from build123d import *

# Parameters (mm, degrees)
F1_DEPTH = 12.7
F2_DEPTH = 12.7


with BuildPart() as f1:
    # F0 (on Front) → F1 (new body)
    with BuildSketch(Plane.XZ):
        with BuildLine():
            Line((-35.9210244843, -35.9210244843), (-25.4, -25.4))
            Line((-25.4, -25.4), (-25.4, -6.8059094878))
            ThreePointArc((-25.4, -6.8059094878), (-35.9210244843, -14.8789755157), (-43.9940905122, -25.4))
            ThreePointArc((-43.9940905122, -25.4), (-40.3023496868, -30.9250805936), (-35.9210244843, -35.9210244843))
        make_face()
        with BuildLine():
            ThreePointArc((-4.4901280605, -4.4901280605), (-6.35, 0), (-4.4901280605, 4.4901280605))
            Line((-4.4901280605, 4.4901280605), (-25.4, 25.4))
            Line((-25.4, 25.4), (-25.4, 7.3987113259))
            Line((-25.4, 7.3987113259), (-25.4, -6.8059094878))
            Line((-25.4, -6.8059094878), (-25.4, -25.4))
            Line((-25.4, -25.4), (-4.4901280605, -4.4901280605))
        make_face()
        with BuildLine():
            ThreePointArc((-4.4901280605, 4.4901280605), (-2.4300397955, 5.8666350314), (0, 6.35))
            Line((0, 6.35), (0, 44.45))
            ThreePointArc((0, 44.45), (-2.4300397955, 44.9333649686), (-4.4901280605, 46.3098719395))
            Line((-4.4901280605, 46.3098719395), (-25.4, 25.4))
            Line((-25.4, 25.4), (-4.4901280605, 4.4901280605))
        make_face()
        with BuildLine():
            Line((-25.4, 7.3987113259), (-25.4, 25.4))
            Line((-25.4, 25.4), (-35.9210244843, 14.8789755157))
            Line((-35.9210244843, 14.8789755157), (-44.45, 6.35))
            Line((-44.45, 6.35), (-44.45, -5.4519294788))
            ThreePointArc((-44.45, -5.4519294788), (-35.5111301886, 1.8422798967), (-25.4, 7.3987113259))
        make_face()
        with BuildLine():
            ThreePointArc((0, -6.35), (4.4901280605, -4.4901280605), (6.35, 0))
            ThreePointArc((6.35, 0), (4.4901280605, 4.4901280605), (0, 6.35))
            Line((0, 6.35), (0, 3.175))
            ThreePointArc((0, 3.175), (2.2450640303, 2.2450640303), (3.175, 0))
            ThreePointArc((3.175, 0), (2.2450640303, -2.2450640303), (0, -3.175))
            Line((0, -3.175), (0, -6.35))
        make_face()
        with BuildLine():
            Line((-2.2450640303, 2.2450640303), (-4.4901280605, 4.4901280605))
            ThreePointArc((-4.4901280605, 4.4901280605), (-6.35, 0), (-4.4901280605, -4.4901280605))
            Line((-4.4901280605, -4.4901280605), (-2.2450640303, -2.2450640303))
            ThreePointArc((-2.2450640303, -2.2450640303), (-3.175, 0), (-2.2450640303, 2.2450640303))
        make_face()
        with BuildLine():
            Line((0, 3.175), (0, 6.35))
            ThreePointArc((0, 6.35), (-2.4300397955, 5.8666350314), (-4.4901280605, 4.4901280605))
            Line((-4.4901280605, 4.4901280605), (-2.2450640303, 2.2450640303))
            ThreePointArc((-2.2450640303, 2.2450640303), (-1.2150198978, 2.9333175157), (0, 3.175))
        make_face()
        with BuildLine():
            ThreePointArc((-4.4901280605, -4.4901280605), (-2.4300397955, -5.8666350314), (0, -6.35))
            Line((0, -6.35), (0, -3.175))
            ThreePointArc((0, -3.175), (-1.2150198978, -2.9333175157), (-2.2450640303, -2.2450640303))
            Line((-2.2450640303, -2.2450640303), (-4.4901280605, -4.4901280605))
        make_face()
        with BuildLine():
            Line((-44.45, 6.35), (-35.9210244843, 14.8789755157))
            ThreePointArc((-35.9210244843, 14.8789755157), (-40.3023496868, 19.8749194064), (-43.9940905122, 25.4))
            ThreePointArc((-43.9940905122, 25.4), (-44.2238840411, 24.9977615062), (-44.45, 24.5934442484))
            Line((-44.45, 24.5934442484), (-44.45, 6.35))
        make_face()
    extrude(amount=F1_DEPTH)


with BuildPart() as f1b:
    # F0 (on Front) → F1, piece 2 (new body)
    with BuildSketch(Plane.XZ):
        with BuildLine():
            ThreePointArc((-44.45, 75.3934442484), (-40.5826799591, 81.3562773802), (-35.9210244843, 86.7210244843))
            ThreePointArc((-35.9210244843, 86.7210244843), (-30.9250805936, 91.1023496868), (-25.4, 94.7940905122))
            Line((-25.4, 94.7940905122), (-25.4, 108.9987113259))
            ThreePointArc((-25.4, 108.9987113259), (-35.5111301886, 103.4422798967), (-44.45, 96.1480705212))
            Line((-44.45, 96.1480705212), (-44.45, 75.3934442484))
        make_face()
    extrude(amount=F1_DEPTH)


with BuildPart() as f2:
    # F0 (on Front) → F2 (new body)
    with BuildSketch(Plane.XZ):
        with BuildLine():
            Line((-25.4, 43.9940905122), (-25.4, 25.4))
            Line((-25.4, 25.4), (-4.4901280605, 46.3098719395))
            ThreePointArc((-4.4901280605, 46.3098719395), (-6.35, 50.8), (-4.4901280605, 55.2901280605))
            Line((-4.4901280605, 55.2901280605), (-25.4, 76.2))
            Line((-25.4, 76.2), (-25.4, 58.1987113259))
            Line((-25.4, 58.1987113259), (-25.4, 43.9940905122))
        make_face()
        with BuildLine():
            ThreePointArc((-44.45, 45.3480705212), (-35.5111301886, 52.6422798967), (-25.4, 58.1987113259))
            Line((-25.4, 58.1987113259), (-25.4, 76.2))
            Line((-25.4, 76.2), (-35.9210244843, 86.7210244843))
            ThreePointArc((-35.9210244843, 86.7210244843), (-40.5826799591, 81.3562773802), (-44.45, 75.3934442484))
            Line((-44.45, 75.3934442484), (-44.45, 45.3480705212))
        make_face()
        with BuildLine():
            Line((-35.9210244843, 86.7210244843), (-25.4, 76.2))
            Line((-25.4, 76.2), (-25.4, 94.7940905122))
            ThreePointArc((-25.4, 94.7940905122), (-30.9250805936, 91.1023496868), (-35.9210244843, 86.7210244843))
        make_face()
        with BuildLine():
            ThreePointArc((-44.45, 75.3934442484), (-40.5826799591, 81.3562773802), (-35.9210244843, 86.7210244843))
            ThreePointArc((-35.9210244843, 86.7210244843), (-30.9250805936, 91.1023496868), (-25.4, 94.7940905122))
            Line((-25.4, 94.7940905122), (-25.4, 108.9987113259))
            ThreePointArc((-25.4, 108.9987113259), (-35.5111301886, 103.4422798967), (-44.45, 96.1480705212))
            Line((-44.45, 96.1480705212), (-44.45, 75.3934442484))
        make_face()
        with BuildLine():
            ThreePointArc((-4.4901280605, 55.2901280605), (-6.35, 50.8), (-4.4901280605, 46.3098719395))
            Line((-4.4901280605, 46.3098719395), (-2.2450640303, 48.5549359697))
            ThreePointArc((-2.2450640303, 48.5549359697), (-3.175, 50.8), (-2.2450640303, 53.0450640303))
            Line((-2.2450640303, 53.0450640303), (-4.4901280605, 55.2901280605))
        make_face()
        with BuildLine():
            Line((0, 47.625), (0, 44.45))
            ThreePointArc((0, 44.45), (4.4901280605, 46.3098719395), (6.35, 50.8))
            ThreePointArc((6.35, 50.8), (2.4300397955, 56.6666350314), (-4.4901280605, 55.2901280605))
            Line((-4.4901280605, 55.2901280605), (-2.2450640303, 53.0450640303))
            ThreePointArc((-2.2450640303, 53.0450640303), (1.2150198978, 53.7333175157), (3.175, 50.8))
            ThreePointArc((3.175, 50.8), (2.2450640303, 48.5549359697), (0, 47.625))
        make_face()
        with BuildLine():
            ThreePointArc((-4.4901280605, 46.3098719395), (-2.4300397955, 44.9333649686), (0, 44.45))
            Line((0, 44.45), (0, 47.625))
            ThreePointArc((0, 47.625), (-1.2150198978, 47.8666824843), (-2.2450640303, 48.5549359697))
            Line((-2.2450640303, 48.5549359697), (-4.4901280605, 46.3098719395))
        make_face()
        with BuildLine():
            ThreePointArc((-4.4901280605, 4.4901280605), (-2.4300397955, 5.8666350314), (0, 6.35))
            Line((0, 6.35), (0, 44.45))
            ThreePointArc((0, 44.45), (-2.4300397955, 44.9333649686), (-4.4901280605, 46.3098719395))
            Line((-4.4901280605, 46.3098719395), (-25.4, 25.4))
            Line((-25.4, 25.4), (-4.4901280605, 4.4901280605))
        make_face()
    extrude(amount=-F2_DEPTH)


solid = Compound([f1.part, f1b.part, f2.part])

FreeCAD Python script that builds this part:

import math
import FreeCAD as App
import Part
import Sketcher

V = App.Vector
Q = App.Units.Quantity

doc = App.newDocument("Part")
body = doc.addObject("PartDesign::Body", "Body")

sketch1 = body.newObject("Sketcher::SketchObject", "Sketch")
sketch1.AttachmentSupport = (doc.getObject("XZ_Plane"), [""])
sketch1.MapMode = "FlatFace"
sketch1.addGeometry([
    Part.LineSegment(V(-35.9, -35.9, 0), V(-4.5, -4.5, 0)),
    Part.ArcOfCircle(Part.Circle(V(0, 0, 0), V(0, 0, 1), 6.3), math.radians(-135), math.radians(-90)),
    Part.ArcOfCircle(Part.Circle(V(0, 0, 0), V(0, 0, 1), 6.3), math.radians(-90), math.radians(0)),
    Part.ArcOfCircle(Part.Circle(V(0, 0, 0), V(0, 0, 1), 6.3), math.radians(0), math.radians(90)),
    Part.LineSegment(V(0, 6.3, 0), V(0, 44.5, 0)),
    Part.ArcOfCircle(Part.Circle(V(0, 50.8, 0), V(0, 0, 1), 6.3), math.radians(-135), math.radians(-90)),
    Part.LineSegment(V(-4.5, 46.3, 0), V(-35.9, 14.9, 0)),
    Part.ArcOfCircle(Part.Circle(V(0, 50.8, 0), V(0, 0, 1), 50.8), math.radians(-150), math.radians(-135)),
    Part.ArcOfCircle(Part.Circle(V(0, 0, 0), V(0, 0, 1), 50.8), math.radians(150), math.radians(151.04)),
    Part.LineSegment(V(-44.5, 24.6, 0), V(-44.5, -5.5, 0)),
    Part.ArcOfCircle(Part.Circle(V(0, -50.8, 0), V(0, 0, 1), 63.5), math.radians(114), math.radians(134)),
    Part.LineSegment(V(-25.4, 7.4, 0), V(-25.4, -6.8, 0)),
    Part.ArcOfCircle(Part.Circle(V(0, -50.8, 0), V(0, 0, 1), 50.8), math.radians(120), math.radians(150)),
    Part.ArcOfCircle(Part.Circle(V(0, 0, 0), V(0, 0, 1), 50.8), math.radians(-150), math.radians(-135)),
    Part.ArcOfCircle(Part.Circle(V(0, 0, 0), V(0, 0, 1), 3.2), math.radians(135), math.radians(225)),
    Part.ArcOfCircle(Part.Circle(V(0, 0, 0), V(0, 0, 1), 3.2), math.radians(90), math.radians(135)),
    Part.ArcOfCircle(Part.Circle(V(0, 0, 0), V(0, 0, 1), 3.2), math.radians(0), math.radians(90)),
    Part.ArcOfCircle(Part.Circle(V(0, 0, 0), V(0, 0, 1), 3.2), math.radians(-90), math.radians(0)),
    Part.ArcOfCircle(Part.Circle(V(0, 0, 0), V(0, 0, 1), 3.2), math.radians(-135), math.radians(-90)),
], False)
sketch1.addConstraint([
    Sketcher.Constraint("Coincident", 0, 2, 1, 1),
    Sketcher.Constraint("Tangent", 1, 2, 2, 1),
    Sketcher.Constraint("Tangent", 2, 2, 3, 1),
    Sketcher.Constraint("Coincident", 3, 2, 4, 1),
    Sketcher.Constraint("Coincident", 4, 2, 5, 2),
    Sketcher.Constraint("Coincident", 5, 1, 6, 1),
    Sketcher.Constraint("Coincident", 6, 2, 7, 2),
    Sketcher.Constraint("Coincident", 7, 1, 8, 1),
    Sketcher.Constraint("Coincident", 8, 2, 9, 1),
    Sketcher.Constraint("Coincident", 9, 2, 10, 2),
    Sketcher.Constraint("Coincident", 10, 1, 11, 1),
    Sketcher.Constraint("Coincident", 11, 2, 12, 1),
    Sketcher.Constraint("Coincident", 12, 2, 13, 1),
    Sketcher.Constraint("Coincident", 13, 2, 0, 1),
    Sketcher.Constraint("Tangent", 14, 1, 15, 2),
    Sketcher.Constraint("Tangent", 15, 1, 16, 2),
    Sketcher.Constraint("Tangent", 16, 1, 17, 2),
    Sketcher.Constraint("Tangent", 17, 1, 18, 2),
    Sketcher.Constraint("Tangent", 18, 1, 14, 2),
    Sketcher.Constraint("Vertical", 4),
    Sketcher.Constraint("Vertical", 9),
    Sketcher.Constraint("Vertical", 11),
    Sketcher.Constraint("Coincident", 1, 3, -1, 1),
    Sketcher.Constraint("Coincident", 3, 3, -1, 1),
    Sketcher.Constraint("Coincident", 8, 3, -1, 1),
    Sketcher.Constraint("Coincident", 13, 3, -1, 1),
    Sketcher.Constraint("Coincident", 14, 3, -1, 1),
    Sketcher.Constraint("Coincident", 16, 3, -1, 1),
    Sketcher.Constraint("Coincident", 7, 3, 5, 3),
    Sketcher.Constraint("Coincident", 12, 3, 10, 3),
    Sketcher.Constraint("Equal", 3, 5),
    Sketcher.Constraint("Equal", 7, 8),
    Sketcher.Constraint("Equal", 8, 12),
    Sketcher.Constraint("Equal", 12, 13),
    Sketcher.Constraint("Symmetric", 5, 3, 10, 3, -1, 1),
    Sketcher.Constraint("PointOnObject", 5, 3, -2),
    Sketcher.Constraint("PointOnObject", 1, 2, -2),
    Sketcher.Constraint("PointOnObject", 2, 2, -1),
    Sketcher.Constraint("PointOnObject", 3, 2, -2),
    Sketcher.Constraint("PointOnObject", 15, 1, -2),
    Sketcher.Constraint("PointOnObject", 16, 1, -1),
    Sketcher.Constraint("PointOnObject", 17, 1, -2),
    Sketcher.Constraint("Parallel", 0, 6),
    Sketcher.Constraint("Vertical", 0, 2, 5, 1),
    Sketcher.Constraint("Vertical", 14, 1, 18, 1),
    Sketcher.Constraint("Radius", 7, Q("2 in")),
    Sketcher.Constraint("Radius", 10, Q("2.5 in")),
    Sketcher.Constraint("Radius", 1, Q("0.25 in")),
    Sketcher.Constraint("DistanceY", 4, 1, 4, 2, Q("1.5 in")),
    Sketcher.Constraint("DistanceX", 10, 1, -1, 1, Q("1 in")),
    Sketcher.Constraint("Angle", 0, Q("45 deg")),
    Sketcher.Constraint("Radius", 14, Q("0.125 in")),
    Sketcher.Constraint("DistanceX", 8, 2, -1, 1, Q("1.75 in")),
    Sketcher.Constraint("DistanceY", 9, 2, 0, 2, 0.961801),
    Sketcher.Constraint("DistanceX", 14, 1, -1, 1, 2.245064),
])
pad1 = body.newObject("PartDesign::Pad", "Pad")
pad1.Profile = sketch1
pad1.Length = Q("0.5 in")
body2 = doc.addObject("PartDesign::Body", "Body001")

sketch2 = body2.newObject("Sketcher::SketchObject", "Sketch001")
sketch2.AttachmentSupport = (doc.getObject("XZ_Plane001"), [""])
sketch2.MapMode = "FlatFace"
sketch2.addGeometry([
    Part.ArcOfCircle(Part.Circle(V(0, 51, 0), V(0, 0, 1), 51), math.radians(135), math.radians(151.04)),
    Part.ArcOfCircle(Part.Circle(V(0, 51, 0), V(0, 0, 1), 51), math.radians(120), math.radians(135)),
    Part.LineSegment(V(-25, 95, 0), V(-25, 109, 0)),
    Part.ArcOfCircle(Part.Circle(V(0, 51, 0), V(0, 0, 1), 64), math.radians(114), math.radians(134)),
    Part.LineSegment(V(-44, 96, 0), V(-44, 75, 0)),
], False)
sketch2.addConstraint([
    Sketcher.Constraint("Tangent", 0, 1, 1, 2),
    Sketcher.Constraint("Coincident", 1, 1, 2, 1),
    Sketcher.Constraint("Coincident", 2, 2, 3, 1),
    Sketcher.Constraint("Coincident", 3, 2, 4, 1),
    Sketcher.Constraint("Coincident", 4, 2, 0, 2),
    Sketcher.Constraint("Vertical", 2),
    Sketcher.Constraint("Vertical", 4),
    Sketcher.Constraint("Coincident", 3, 3, 0, 3),
    Sketcher.Constraint("Equal", 0, 1),
    Sketcher.Constraint("PointOnObject", 0, 3, -2),
    Sketcher.Constraint("Radius", 0, Q("2 in")),
    Sketcher.Constraint("Radius", 3, Q("2.5 in")),
    Sketcher.Constraint("DistanceY", -1, 1, 0, 3, Q("2 in")),
    Sketcher.Constraint("DistanceX", 1, 1, -1, 1, Q("1 in")),
    Sketcher.Constraint("DistanceX", 3, 2, -1, 1, Q("1.75 in")),
    Sketcher.Constraint("DistanceY", 4, 2, 0, 1, 11.32758),
])
pad2 = body2.newObject("PartDesign::Pad", "Pad001")
pad2.Profile = sketch2
pad2.Length = Q("0.5 in")
body3 = doc.addObject("PartDesign::Body", "Body002")

sketch3 = body3.newObject("Sketcher::SketchObject", "Sketch002")
sketch3.AttachmentSupport = (doc.getObject("XZ_Plane002"), [""])
sketch3.MapMode = "FlatFace"
sketch3.addGeometry([
    Part.ArcOfCircle(Part.Circle(V(0, 50.8, 0), V(0, 0, 1), 6.3), math.radians(-90), math.radians(0)),
    Part.ArcOfCircle(Part.Circle(V(0, 50.8, 0), V(0, 0, 1), 6.3), math.radians(0), math.radians(135)),
    Part.LineSegment(V(-4.5, 55.3, 0), V(-25.4, 76.2, 0)),
    Part.LineSegment(V(-25.4, 76.2, 0), V(-25.4, 109, 0)),
    Part.ArcOfCircle(Part.Circle(V(0, 50.8, 0), V(0, 0, 1), 63.5), math.radians(114), math.radians(134)),
    Part.LineSegment(V(-44.5, 96.1, 0), V(-44.5, 45.3, 0)),
    Part.ArcOfCircle(Part.Circle(V(0, 0, 0), V(0, 0, 1), 63.5), math.radians(114), math.radians(134)),
    Part.LineSegment(V(-25.4, 58.2, 0), V(-25.4, 25.4, 0)),
    Part.LineSegment(V(-25.4, 25.4, 0), V(-4.5, 4.5, 0)),
    Part.ArcOfCircle(Part.Circle(V(0, 0, 0), V(0, 0, 1), 6.3), math.radians(90), math.radians(135)),
    Part.LineSegment(V(0, 6.3, 0), V(0, 44.5, 0)),
    Part.ArcOfCircle(Part.Circle(V(0, 50.8, 0), V(0, 0, 1), 3.2), math.radians(135), math.radians(225)),
    Part.ArcOfCircle(Part.Circle(V(0, 50.8, 0), V(0, 0, 1), 3.2), math.radians(0), math.radians(135)),
    Part.ArcOfCircle(Part.Circle(V(0, 50.8, 0), V(0, 0, 1), 3.2), math.radians(-90), math.radians(0)),
    Part.ArcOfCircle(Part.Circle(V(0, 50.8, 0), V(0, 0, 1), 3.2), math.radians(-135), math.radians(-90)),
], False)
sketch3.addConstraint([
    Sketcher.Constraint("Tangent", 0, 2, 1, 1),
    Sketcher.Constraint("Coincident", 1, 2, 2, 1),
    Sketcher.Constraint("Coincident", 2, 2, 3, 1),
    Sketcher.Constraint("Coincident", 3, 2, 4, 1),
    Sketcher.Constraint("Coincident", 4, 2, 5, 1),
    Sketcher.Constraint("Coincident", 5, 2, 6, 2),
    Sketcher.Constraint("Coincident", 6, 1, 7, 1),
    Sketcher.Constraint("Coincident", 7, 2, 8, 1),
    Sketcher.Constraint("Coincident", 8, 2, 9, 2),
    Sketcher.Constraint("Coincident", 9, 1, 10, 1),
    Sketcher.Constraint("Coincident", 10, 2, 0, 1),
    Sketcher.Constraint("Tangent", 11, 1, 12, 2),
    Sketcher.Constraint("Tangent", 12, 1, 13, 2),
    Sketcher.Constraint("Tangent", 13, 1, 14, 2),
    Sketcher.Constraint("Tangent", 14, 1, 11, 2),
    Sketcher.Constraint("Vertical", 3),
    Sketcher.Constraint("Vertical", 5),
    Sketcher.Constraint("Vertical", 7),
    Sketcher.Constraint("Vertical", 10),
    Sketcher.Constraint("Coincident", 6, 3, -1, 1),
    Sketcher.Constraint("Coincident", 9, 3, -1, 1),
    Sketcher.Constraint("Coincident", 4, 3, 0, 3),
    Sketcher.Constraint("Coincident", 11, 3, 0, 3),
    Sketcher.Constraint("Equal", 0, 1),
    Sketcher.Constraint("Equal", 4, 6),
    Sketcher.Constraint("Equal", 1, 9),
    Sketcher.Constraint("Equal", 11, 12),
    Sketcher.Constraint("PointOnObject", 0, 3, -2),
    Sketcher.Constraint("PointOnObject", 9, 1, -2),
    Sketcher.Constraint("PointOnObject", 13, 1, -2),
    Sketcher.Constraint("Parallel", 2, 8),
    Sketcher.Constraint("Horizontal", 14, 3, 0, 2),
    Sketcher.Constraint("Horizontal", 0, 2, 12, 1),
    Sketcher.Constraint("Vertical", 3, 2, 6, 1),
    Sketcher.Constraint("Vertical", 1, 2, 8, 2),
    Sketcher.Constraint("Vertical", 11, 1, 14, 1),
    Sketcher.Constraint("Radius", 4, Q("2.5 in")),
    Sketcher.Constraint("DistanceY", 5, 2, 5, 1, Q("2 in")),
    Sketcher.Constraint("Radius", 0, Q("0.25 in")),
    Sketcher.Constraint("DistanceX", 2, 2, -1, 1, Q("1 in")),
    Sketcher.Constraint("DistanceY", -1, 1, 2, 2, Q("3 in")),
    Sketcher.Constraint("Angle", 2, Q("135 deg")),
    Sketcher.Constraint("Radius", 11, Q("0.125 in")),
    Sketcher.Constraint("DistanceX", 4, 2, -1, 1, Q("1.75 in")),
    Sketcher.Constraint("DistanceX", 11, 1, -1, 1, 2.245064),
])
pad3 = body3.newObject("PartDesign::Pad", "Pad002")
pad3.Profile = sketch3
pad3.Length = Q("0.5 in")
pad3.Reversed = True

doc.recompute()
